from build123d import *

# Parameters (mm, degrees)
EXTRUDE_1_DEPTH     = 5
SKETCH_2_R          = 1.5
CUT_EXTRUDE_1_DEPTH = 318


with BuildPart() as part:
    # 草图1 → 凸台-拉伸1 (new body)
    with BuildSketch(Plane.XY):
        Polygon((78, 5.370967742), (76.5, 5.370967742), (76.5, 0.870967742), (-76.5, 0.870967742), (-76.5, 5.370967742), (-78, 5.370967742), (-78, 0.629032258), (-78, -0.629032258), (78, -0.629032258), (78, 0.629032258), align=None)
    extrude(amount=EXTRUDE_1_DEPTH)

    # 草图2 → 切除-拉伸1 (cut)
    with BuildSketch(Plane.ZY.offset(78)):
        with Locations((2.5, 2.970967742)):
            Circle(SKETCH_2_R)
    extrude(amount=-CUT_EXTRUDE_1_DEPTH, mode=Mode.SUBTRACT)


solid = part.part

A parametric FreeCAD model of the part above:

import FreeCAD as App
import Part
import Sketcher

V = App.Vector
Q = App.Units.Quantity


def add_polygon(sketch, points):
    """Adds a closed chain of lines whose ends are joined by coincident constraints."""
    first, n = sketch.GeometryCount, len(points)
    for a, b in zip(points, points[1:] + points[:1]):
        sketch.addGeometry(Part.LineSegment(App.Vector(*a, 0), App.Vector(*b, 0)), False)
    for i in range(n):
        sketch.addConstraint(Sketcher.Constraint("Coincident", first + i, 2, first + (i + 1) % n, 1))

doc = App.newDocument("Part")
params = doc.addObject("Spreadsheet::Sheet", "Params")
for row, (alias, value) in enumerate([
    ("sketch1_width", "153 mm"),
    ("sketch1_width2", "156 mm"),
    ("sketch1_height", "6 mm"),
    ("sketch1_height2", "4.5 mm"),
    ("pad1_length", "5 mm"),
    ("sketch2_diameter", "3 mm"),
    ("pocket1_length", "318 mm"),
], start=1):
    params.set(f"A{row}", alias)
    params.set(f"B{row}", "=" + value)
    params.setAlias(f"B{row}", alias)

body = doc.addObject("PartDesign::Body", "Body")

# Sketch on XY plane
sketch1 = doc.addObject("Sketcher::SketchObject", "Sketch")
body.addObject(sketch1)
sketch1.AttachmentSupport = (doc.XY_Plane, [""])
sketch1.MapMode = "FlatFace"
add_polygon(sketch1, [(78, 5.370968), (76.5, 5.370968), (76.5, 0.870968), (-76.5, 0.870968), (-76.5, 5.370968), (-78, 5.370968), (-78, -0.629032), (78, -0.629032)])  # lines 0-7
sketch1.addConstraint(Sketcher.Constraint("Horizontal", 0))
sketch1.addConstraint(Sketcher.Constraint("Vertical", 1))
sketch1.addConstraint(Sketcher.Constraint("Horizontal", 2))
sketch1.addConstraint(Sketcher.Constraint("Vertical", 3))
sketch1.addConstraint(Sketcher.Constraint("Horizontal", 4))
sketch1.addConstraint(Sketcher.Constraint("Vertical", 5))
sketch1.addConstraint(Sketcher.Constraint("Horizontal", 6))
sketch1.addConstraint(Sketcher.Constraint("Vertical", 7))
sketch1.addConstraint(Sketcher.Constraint("Symmetric", 0, 2, 3, 2, -2))
sketch1.addConstraint(Sketcher.Constraint("Equal", 0, 4))
sketch1.addConstraint(Sketcher.Constraint("DistanceX", 2, 2, 2, 1, Q("153 mm")))
sketch1.addConstraint(Sketcher.Constraint("DistanceX", 6, 1, 6, 2, Q("156 mm")))
sketch1.addConstraint(Sketcher.Constraint("DistanceY", 5, 2, 5, 1, Q("6 mm")))
sketch1.addConstraint(Sketcher.Constraint("DistanceY", 1, 2, 1, 1, Q("4.5 mm")))
sketch1.addConstraint(Sketcher.Constraint("DistanceY", -1, 1, 0, 2, Q("5.370968 mm")))
sketch1.setExpression("Constraints[18]", "Params.sketch1_width")
sketch1.setExpression("Constraints[19]", "Params.sketch1_width2")
sketch1.setExpression("Constraints[20]", "Params.sketch1_height")
sketch1.setExpression("Constraints[21]", "Params.sketch1_height2")
pad1 = doc.addObject("PartDesign::Pad", "Pad")
body.addObject(pad1)
pad1.Profile = sketch1
pad1.setExpression("Length", "Params.pad1_length")

# Sketch on YZ plane
sketch2 = doc.addObject("Sketcher::SketchObject", "Sketch001")
body.addObject(sketch2)
sketch2.AttachmentSupport = (doc.YZ_Plane, [""])
sketch2.MapMode = "FlatFace"
sketch2.AttachmentOffset = App.Placement(V(0, 0, -78), App.Rotation())
sketch2.addGeometry(Part.Circle(V(2.970968, 2.5, 0), V(0, 0, 1), 1.5), False)
sketch2.addConstraint(Sketcher.Constraint("Diameter", 0, Q("3 mm")))
sketch2.addConstraint(Sketcher.Constraint("DistanceY", -1, 1, 0, 3, Q("2.5 mm")))
sketch2.addConstraint(Sketcher.Constraint("DistanceX", -1, 1, 0, 3, Q("2.970968 mm")))
sketch2.setExpression("Constraints[0]", "Params.sketch2_diameter")
pocket1 = doc.addObject("PartDesign::Pocket", "Pocket")
body.addObject(pocket1)
pocket1.Profile = sketch2
pocket1.setExpression("Length", "Params.pocket1_length")
pocket1.Reversed = True

doc.recompute()
